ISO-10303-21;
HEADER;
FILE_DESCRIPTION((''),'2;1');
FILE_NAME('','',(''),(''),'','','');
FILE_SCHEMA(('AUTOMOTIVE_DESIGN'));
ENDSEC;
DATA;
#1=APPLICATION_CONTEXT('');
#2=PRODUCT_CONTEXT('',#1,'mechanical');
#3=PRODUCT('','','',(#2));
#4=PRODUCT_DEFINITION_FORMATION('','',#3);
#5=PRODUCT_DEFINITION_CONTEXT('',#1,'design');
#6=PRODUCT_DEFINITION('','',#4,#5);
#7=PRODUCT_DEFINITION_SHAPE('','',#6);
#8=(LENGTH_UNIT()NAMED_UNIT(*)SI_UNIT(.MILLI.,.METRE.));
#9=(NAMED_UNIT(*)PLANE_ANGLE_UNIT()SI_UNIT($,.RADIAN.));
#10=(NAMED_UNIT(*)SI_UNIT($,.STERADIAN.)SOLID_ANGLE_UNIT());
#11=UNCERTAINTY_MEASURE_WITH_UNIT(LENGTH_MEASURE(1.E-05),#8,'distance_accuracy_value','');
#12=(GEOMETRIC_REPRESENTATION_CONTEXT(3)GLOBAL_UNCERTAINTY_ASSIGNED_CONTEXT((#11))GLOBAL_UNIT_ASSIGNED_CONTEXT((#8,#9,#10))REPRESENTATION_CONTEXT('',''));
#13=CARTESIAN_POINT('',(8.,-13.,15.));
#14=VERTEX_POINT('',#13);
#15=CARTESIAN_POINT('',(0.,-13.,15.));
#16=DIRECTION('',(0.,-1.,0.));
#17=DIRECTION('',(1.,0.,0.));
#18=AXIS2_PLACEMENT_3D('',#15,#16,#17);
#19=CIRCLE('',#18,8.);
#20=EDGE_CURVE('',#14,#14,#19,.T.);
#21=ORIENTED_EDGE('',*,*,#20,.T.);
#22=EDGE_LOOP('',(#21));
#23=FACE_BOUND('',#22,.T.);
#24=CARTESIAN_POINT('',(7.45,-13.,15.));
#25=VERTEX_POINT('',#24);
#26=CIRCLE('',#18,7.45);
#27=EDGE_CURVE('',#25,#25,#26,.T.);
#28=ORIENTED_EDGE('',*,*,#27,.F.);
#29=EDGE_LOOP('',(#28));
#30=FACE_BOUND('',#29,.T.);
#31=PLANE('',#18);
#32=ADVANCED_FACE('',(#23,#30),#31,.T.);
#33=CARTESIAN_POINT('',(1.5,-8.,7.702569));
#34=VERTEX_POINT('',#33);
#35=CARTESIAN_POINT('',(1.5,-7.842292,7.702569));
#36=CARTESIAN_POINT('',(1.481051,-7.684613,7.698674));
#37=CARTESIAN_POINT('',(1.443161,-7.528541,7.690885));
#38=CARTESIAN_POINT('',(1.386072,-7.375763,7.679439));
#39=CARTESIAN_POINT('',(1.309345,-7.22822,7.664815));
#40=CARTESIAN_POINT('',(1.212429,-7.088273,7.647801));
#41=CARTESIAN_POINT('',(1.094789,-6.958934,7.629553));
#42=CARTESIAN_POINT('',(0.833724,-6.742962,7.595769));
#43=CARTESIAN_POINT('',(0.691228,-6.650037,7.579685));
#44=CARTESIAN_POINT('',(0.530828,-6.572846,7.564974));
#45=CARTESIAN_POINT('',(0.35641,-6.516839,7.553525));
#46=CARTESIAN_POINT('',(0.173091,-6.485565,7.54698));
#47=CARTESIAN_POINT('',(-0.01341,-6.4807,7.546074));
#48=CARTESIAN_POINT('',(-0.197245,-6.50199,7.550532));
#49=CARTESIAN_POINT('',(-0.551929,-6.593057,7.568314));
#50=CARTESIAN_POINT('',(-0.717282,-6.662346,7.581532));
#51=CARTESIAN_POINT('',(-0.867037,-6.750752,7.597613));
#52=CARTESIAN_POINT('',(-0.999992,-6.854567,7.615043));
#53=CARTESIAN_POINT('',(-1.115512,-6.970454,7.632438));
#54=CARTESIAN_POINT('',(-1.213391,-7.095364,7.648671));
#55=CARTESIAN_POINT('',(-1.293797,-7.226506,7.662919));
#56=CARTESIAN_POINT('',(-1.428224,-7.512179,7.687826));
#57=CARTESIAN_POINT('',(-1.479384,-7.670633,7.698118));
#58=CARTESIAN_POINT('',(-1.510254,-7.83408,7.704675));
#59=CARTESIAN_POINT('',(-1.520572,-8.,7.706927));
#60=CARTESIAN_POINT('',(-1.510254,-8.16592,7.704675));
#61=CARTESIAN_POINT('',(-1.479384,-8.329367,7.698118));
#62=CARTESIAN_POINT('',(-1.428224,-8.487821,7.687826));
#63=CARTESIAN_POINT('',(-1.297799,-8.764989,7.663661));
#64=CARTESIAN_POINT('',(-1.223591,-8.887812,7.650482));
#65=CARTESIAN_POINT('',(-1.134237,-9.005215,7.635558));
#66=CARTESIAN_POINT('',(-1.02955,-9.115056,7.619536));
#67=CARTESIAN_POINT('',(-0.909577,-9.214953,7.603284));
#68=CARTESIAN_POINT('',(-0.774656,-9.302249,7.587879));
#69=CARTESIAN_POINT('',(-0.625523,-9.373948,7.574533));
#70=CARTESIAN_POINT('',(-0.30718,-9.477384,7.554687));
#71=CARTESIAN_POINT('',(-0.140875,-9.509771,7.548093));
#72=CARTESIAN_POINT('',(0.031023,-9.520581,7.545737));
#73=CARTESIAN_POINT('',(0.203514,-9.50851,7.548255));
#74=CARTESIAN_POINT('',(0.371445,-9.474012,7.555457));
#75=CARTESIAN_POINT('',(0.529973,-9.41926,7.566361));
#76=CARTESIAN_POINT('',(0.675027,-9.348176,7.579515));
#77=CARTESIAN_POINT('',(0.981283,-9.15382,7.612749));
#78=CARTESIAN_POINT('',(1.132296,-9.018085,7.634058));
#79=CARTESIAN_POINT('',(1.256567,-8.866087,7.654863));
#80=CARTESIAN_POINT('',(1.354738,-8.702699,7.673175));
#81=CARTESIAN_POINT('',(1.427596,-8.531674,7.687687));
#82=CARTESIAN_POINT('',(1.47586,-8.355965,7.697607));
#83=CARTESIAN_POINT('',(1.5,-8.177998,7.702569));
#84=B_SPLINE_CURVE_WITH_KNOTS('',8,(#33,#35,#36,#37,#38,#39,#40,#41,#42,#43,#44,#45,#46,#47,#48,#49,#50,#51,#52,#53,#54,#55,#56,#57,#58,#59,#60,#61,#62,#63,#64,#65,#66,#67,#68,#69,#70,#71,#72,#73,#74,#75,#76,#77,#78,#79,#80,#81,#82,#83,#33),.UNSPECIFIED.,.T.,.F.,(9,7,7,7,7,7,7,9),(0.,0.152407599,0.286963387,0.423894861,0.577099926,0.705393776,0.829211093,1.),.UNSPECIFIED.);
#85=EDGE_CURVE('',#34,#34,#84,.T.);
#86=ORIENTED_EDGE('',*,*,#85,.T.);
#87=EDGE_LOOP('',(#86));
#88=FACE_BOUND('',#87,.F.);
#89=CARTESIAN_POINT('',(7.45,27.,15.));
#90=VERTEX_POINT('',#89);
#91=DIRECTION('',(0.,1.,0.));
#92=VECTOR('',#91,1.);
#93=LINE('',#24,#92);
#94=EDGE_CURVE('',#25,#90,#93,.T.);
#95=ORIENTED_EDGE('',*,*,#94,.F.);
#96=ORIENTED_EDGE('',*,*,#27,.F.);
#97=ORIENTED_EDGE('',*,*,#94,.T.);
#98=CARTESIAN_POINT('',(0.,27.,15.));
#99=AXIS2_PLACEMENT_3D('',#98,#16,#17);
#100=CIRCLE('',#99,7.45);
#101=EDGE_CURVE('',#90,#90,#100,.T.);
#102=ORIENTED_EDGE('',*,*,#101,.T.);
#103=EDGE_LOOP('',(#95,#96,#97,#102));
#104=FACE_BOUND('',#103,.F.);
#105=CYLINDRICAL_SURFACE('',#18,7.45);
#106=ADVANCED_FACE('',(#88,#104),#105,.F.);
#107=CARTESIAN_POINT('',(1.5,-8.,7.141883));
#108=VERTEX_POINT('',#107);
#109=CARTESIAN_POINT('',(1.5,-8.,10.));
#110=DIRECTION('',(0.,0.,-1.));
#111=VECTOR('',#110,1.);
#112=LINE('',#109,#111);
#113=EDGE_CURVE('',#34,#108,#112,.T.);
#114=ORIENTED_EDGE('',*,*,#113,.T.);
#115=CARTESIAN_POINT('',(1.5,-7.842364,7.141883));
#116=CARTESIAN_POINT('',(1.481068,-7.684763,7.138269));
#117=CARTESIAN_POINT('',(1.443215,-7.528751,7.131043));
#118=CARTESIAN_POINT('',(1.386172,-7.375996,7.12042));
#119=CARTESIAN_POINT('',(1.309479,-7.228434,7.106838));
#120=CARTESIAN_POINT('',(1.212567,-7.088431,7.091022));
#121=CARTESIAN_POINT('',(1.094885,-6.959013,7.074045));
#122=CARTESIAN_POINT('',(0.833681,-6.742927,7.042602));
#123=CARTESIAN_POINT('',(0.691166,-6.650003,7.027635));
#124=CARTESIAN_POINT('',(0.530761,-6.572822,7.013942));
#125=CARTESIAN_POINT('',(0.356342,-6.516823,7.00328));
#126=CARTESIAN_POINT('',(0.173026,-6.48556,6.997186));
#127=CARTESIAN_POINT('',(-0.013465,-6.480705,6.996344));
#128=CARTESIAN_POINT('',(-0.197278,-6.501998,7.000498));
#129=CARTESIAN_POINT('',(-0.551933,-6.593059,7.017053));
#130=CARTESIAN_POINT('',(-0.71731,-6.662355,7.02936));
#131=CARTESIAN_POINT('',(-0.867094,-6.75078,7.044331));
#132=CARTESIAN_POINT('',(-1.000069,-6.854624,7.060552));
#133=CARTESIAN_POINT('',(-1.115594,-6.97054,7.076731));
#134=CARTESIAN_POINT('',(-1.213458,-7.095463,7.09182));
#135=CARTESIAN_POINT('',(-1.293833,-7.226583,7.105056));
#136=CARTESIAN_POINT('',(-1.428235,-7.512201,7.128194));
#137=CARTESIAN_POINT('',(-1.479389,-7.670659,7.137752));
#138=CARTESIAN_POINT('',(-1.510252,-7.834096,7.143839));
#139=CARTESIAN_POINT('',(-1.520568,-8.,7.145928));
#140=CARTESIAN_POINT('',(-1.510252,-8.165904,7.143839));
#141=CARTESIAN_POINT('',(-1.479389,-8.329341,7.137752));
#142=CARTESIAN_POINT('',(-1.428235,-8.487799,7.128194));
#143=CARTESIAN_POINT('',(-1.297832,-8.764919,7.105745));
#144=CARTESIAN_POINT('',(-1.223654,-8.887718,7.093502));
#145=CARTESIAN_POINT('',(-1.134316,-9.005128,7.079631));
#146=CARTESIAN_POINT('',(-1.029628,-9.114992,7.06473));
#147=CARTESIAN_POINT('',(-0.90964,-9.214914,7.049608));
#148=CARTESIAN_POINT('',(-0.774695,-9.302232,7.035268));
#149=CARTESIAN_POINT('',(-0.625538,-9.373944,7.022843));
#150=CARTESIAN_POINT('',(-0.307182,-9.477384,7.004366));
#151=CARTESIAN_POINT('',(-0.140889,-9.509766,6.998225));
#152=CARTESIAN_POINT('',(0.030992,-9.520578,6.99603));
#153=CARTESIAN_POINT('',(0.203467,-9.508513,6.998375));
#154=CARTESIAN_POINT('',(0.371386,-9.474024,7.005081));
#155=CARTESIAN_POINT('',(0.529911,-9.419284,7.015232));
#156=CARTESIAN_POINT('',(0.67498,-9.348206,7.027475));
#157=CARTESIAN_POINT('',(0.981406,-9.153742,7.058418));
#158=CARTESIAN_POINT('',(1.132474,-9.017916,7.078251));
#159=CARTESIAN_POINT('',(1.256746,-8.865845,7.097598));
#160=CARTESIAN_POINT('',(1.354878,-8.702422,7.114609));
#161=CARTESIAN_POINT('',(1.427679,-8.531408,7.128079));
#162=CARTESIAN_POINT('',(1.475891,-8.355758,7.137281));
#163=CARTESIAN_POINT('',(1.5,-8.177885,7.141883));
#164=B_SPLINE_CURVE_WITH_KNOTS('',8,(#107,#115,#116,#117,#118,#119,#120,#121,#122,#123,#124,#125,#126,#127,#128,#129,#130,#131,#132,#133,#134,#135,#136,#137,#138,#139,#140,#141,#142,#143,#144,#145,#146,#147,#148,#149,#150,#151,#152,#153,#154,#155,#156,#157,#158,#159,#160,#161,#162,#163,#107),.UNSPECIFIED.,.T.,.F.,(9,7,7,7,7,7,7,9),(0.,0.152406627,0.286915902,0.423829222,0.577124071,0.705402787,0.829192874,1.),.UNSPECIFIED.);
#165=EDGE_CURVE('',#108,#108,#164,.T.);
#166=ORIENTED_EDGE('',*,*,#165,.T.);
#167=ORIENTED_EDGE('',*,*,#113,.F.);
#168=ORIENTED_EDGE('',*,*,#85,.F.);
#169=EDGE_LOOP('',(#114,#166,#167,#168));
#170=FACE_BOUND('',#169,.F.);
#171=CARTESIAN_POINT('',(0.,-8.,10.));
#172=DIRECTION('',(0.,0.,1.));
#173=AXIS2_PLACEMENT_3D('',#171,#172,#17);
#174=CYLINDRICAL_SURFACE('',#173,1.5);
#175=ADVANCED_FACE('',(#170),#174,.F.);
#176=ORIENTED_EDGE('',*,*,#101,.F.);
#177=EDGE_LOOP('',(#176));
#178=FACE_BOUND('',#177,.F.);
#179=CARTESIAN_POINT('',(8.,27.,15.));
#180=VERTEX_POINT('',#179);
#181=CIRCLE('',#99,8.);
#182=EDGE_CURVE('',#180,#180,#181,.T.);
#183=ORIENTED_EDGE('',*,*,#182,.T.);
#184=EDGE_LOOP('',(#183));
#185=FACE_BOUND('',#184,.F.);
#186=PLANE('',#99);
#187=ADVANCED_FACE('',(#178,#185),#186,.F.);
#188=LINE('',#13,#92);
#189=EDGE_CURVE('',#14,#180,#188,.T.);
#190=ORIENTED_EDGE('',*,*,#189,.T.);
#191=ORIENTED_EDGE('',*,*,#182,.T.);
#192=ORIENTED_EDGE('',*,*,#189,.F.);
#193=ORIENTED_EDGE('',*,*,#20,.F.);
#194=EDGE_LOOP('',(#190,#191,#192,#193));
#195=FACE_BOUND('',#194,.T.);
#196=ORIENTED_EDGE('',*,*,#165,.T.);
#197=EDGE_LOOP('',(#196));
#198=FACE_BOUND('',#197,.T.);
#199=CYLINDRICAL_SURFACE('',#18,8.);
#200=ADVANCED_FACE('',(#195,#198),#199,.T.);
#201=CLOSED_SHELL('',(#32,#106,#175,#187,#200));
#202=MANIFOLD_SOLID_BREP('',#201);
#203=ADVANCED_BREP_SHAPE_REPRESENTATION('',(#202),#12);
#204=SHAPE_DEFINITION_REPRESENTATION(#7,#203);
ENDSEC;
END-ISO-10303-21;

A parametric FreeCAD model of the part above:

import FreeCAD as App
import Part
import Sketcher

doc = App.newDocument("Part")
body = doc.addObject("PartDesign::Body", "Body")

sketch1 = body.newObject("Sketcher::SketchObject", "Sketch")
sketch1.AttachmentSupport = (doc.getObject("XZ_Plane"), [""])
sketch1.MapMode = "FlatFace"
sketch1.addGeometry(Part.Circle(App.Vector(0, 15, 0), App.Vector(0, 0, 1), 8), False)
sketch1.addConstraint([
    Sketcher.Constraint("PointOnObject", 0, 3, -2),
    Sketcher.Constraint("Diameter", 0, 16.0),
    Sketcher.Constraint("DistanceY", -1, 1, 0, 3, 15.0),
])
pad1 = body.newObject("PartDesign::Pad", "Pad")
pad1.Profile = sketch1
pad1.Length = 40
pad1.Reversed = True

sketch2 = body.newObject("Sketcher::SketchObject", "Sketch001")
sketch2.AttachmentSupport = (doc.getObject("XY_Plane"), [""])
sketch2.MapMode = "FlatFace"
sketch2.AttachmentOffset = App.Placement(App.Vector(0, 0, 10), App.Rotation())
sketch2.addGeometry(Part.Circle(App.Vector(0, 5, 0), App.Vector(0, 0, 1), 1.5), False)
sketch2.addConstraint([
    Sketcher.Constraint("PointOnObject", 0, 3, -2),
    Sketcher.Constraint("Diameter", 0, 3.0),
    Sketcher.Constraint("DistanceY", -1, 1, 0, 3, 5.0),
])
pocket1 = body.newObject("PartDesign::Pocket", "Pocket")
pocket1.Profile = sketch2
pocket1.Length = 5

sketch3 = body.newObject("Sketcher::SketchObject", "Sketch002")
sketch3.AttachmentSupport = (doc.getObject("XZ_Plane"), [""])
sketch3.MapMode = "FlatFace"
sketch3.addGeometry(Part.Circle(App.Vector(0, 15, 0), App.Vector(0, 0, 1), 7.45), False)
sketch3.addConstraint([
    Sketcher.Constraint("PointOnObject", 0, 3, -2),
    Sketcher.Constraint("Diameter", 0, 14.9),
    Sketcher.Constraint("DistanceY", -1, 1, 0, 3, 15.0),
])
pocket2 = body.newObject("PartDesign::Pocket", "Pocket001")
pocket2.Profile = sketch3
pocket2.Type = "ThroughAll"
body2 = doc.addObject("PartDesign::Body", "Body001")
doc.recompute()

body.Placement = App.Placement(App.Vector(0, -13, 0), App.Rotation(App.Vector(0, 0, 1), 0))
boolean = body2.newObject("PartDesign::Boolean", "Boolean")
boolean.Type = "Fuse"
boolean.addObjects([body])

doc.recompute()
